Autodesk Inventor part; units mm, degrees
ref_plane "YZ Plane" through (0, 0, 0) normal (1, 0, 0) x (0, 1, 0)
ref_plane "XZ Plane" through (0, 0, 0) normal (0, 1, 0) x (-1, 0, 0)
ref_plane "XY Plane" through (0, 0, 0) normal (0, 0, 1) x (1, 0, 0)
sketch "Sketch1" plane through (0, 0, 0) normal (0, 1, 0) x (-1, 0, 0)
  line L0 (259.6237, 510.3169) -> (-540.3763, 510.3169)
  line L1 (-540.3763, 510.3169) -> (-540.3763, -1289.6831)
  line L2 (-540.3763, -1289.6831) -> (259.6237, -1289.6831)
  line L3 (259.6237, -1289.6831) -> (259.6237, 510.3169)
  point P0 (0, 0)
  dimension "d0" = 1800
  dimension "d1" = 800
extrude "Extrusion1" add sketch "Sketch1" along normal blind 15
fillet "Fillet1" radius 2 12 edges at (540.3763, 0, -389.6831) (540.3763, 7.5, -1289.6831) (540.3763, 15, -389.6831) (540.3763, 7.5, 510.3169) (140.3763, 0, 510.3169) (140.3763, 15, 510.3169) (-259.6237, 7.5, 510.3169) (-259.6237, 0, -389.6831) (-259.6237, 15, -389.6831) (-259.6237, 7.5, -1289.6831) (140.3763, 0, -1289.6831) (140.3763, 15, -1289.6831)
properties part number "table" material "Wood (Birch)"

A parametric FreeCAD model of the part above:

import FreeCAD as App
import Part
import Sketcher

V = App.Vector

doc = App.newDocument("Part")
body = doc.addObject("PartDesign::Body", "Body")

sketch1 = body.newObject("Sketcher::SketchObject", "Sketch")
sketch1.AttachmentSupport = (doc.getObject("XZ_Plane"), [""])
sketch1.MapMode = "FlatFace"
sketch1.addGeometry([
    Part.LineSegment(V(-259.6237, -1289.6831, 0), V(-259.6237, 510.3169, 0)),
    Part.LineSegment(V(-259.6237, 510.3169, 0), V(540.3763, 510.3169, 0)),
    Part.LineSegment(V(540.3763, 510.3169, 0), V(540.3763, -1289.6831, 0)),
    Part.LineSegment(V(540.3763, -1289.6831, 0), V(-259.6237, -1289.6831, 0)),
], False)
sketch1.addConstraint([
    Sketcher.Constraint("Coincident", 0, 2, 1, 1),
    Sketcher.Constraint("Coincident", 1, 2, 2, 1),
    Sketcher.Constraint("Coincident", 2, 2, 3, 1),
    Sketcher.Constraint("Coincident", 3, 2, 0, 1),
    Sketcher.Constraint("Vertical", 0),
    Sketcher.Constraint("Horizontal", 1),
    Sketcher.Constraint("Vertical", 2),
    Sketcher.Constraint("Horizontal", 3),
    Sketcher.Constraint("DistanceX", 1, 1, 1, 2, 800.0),
    Sketcher.Constraint("DistanceY", 0, 1, 0, 2, 1800.0),
    Sketcher.Constraint("DistanceY", -1, 1, 0, 2, 510.317),
    Sketcher.Constraint("DistanceX", 0, 2, -1, 1, 259.6237),
])
pad1 = body.newObject("PartDesign::Pad", "Pad")
pad1.Profile = sketch1
pad1.Length = 15
pad1.Reversed = True
doc.recompute()

fillet = body.newObject("PartDesign::Fillet", "Fillet")
fillet.Base = (pad1, ["Edge1"])
fillet.UseAllEdges = True
fillet.Radius = 2

doc.recompute()
